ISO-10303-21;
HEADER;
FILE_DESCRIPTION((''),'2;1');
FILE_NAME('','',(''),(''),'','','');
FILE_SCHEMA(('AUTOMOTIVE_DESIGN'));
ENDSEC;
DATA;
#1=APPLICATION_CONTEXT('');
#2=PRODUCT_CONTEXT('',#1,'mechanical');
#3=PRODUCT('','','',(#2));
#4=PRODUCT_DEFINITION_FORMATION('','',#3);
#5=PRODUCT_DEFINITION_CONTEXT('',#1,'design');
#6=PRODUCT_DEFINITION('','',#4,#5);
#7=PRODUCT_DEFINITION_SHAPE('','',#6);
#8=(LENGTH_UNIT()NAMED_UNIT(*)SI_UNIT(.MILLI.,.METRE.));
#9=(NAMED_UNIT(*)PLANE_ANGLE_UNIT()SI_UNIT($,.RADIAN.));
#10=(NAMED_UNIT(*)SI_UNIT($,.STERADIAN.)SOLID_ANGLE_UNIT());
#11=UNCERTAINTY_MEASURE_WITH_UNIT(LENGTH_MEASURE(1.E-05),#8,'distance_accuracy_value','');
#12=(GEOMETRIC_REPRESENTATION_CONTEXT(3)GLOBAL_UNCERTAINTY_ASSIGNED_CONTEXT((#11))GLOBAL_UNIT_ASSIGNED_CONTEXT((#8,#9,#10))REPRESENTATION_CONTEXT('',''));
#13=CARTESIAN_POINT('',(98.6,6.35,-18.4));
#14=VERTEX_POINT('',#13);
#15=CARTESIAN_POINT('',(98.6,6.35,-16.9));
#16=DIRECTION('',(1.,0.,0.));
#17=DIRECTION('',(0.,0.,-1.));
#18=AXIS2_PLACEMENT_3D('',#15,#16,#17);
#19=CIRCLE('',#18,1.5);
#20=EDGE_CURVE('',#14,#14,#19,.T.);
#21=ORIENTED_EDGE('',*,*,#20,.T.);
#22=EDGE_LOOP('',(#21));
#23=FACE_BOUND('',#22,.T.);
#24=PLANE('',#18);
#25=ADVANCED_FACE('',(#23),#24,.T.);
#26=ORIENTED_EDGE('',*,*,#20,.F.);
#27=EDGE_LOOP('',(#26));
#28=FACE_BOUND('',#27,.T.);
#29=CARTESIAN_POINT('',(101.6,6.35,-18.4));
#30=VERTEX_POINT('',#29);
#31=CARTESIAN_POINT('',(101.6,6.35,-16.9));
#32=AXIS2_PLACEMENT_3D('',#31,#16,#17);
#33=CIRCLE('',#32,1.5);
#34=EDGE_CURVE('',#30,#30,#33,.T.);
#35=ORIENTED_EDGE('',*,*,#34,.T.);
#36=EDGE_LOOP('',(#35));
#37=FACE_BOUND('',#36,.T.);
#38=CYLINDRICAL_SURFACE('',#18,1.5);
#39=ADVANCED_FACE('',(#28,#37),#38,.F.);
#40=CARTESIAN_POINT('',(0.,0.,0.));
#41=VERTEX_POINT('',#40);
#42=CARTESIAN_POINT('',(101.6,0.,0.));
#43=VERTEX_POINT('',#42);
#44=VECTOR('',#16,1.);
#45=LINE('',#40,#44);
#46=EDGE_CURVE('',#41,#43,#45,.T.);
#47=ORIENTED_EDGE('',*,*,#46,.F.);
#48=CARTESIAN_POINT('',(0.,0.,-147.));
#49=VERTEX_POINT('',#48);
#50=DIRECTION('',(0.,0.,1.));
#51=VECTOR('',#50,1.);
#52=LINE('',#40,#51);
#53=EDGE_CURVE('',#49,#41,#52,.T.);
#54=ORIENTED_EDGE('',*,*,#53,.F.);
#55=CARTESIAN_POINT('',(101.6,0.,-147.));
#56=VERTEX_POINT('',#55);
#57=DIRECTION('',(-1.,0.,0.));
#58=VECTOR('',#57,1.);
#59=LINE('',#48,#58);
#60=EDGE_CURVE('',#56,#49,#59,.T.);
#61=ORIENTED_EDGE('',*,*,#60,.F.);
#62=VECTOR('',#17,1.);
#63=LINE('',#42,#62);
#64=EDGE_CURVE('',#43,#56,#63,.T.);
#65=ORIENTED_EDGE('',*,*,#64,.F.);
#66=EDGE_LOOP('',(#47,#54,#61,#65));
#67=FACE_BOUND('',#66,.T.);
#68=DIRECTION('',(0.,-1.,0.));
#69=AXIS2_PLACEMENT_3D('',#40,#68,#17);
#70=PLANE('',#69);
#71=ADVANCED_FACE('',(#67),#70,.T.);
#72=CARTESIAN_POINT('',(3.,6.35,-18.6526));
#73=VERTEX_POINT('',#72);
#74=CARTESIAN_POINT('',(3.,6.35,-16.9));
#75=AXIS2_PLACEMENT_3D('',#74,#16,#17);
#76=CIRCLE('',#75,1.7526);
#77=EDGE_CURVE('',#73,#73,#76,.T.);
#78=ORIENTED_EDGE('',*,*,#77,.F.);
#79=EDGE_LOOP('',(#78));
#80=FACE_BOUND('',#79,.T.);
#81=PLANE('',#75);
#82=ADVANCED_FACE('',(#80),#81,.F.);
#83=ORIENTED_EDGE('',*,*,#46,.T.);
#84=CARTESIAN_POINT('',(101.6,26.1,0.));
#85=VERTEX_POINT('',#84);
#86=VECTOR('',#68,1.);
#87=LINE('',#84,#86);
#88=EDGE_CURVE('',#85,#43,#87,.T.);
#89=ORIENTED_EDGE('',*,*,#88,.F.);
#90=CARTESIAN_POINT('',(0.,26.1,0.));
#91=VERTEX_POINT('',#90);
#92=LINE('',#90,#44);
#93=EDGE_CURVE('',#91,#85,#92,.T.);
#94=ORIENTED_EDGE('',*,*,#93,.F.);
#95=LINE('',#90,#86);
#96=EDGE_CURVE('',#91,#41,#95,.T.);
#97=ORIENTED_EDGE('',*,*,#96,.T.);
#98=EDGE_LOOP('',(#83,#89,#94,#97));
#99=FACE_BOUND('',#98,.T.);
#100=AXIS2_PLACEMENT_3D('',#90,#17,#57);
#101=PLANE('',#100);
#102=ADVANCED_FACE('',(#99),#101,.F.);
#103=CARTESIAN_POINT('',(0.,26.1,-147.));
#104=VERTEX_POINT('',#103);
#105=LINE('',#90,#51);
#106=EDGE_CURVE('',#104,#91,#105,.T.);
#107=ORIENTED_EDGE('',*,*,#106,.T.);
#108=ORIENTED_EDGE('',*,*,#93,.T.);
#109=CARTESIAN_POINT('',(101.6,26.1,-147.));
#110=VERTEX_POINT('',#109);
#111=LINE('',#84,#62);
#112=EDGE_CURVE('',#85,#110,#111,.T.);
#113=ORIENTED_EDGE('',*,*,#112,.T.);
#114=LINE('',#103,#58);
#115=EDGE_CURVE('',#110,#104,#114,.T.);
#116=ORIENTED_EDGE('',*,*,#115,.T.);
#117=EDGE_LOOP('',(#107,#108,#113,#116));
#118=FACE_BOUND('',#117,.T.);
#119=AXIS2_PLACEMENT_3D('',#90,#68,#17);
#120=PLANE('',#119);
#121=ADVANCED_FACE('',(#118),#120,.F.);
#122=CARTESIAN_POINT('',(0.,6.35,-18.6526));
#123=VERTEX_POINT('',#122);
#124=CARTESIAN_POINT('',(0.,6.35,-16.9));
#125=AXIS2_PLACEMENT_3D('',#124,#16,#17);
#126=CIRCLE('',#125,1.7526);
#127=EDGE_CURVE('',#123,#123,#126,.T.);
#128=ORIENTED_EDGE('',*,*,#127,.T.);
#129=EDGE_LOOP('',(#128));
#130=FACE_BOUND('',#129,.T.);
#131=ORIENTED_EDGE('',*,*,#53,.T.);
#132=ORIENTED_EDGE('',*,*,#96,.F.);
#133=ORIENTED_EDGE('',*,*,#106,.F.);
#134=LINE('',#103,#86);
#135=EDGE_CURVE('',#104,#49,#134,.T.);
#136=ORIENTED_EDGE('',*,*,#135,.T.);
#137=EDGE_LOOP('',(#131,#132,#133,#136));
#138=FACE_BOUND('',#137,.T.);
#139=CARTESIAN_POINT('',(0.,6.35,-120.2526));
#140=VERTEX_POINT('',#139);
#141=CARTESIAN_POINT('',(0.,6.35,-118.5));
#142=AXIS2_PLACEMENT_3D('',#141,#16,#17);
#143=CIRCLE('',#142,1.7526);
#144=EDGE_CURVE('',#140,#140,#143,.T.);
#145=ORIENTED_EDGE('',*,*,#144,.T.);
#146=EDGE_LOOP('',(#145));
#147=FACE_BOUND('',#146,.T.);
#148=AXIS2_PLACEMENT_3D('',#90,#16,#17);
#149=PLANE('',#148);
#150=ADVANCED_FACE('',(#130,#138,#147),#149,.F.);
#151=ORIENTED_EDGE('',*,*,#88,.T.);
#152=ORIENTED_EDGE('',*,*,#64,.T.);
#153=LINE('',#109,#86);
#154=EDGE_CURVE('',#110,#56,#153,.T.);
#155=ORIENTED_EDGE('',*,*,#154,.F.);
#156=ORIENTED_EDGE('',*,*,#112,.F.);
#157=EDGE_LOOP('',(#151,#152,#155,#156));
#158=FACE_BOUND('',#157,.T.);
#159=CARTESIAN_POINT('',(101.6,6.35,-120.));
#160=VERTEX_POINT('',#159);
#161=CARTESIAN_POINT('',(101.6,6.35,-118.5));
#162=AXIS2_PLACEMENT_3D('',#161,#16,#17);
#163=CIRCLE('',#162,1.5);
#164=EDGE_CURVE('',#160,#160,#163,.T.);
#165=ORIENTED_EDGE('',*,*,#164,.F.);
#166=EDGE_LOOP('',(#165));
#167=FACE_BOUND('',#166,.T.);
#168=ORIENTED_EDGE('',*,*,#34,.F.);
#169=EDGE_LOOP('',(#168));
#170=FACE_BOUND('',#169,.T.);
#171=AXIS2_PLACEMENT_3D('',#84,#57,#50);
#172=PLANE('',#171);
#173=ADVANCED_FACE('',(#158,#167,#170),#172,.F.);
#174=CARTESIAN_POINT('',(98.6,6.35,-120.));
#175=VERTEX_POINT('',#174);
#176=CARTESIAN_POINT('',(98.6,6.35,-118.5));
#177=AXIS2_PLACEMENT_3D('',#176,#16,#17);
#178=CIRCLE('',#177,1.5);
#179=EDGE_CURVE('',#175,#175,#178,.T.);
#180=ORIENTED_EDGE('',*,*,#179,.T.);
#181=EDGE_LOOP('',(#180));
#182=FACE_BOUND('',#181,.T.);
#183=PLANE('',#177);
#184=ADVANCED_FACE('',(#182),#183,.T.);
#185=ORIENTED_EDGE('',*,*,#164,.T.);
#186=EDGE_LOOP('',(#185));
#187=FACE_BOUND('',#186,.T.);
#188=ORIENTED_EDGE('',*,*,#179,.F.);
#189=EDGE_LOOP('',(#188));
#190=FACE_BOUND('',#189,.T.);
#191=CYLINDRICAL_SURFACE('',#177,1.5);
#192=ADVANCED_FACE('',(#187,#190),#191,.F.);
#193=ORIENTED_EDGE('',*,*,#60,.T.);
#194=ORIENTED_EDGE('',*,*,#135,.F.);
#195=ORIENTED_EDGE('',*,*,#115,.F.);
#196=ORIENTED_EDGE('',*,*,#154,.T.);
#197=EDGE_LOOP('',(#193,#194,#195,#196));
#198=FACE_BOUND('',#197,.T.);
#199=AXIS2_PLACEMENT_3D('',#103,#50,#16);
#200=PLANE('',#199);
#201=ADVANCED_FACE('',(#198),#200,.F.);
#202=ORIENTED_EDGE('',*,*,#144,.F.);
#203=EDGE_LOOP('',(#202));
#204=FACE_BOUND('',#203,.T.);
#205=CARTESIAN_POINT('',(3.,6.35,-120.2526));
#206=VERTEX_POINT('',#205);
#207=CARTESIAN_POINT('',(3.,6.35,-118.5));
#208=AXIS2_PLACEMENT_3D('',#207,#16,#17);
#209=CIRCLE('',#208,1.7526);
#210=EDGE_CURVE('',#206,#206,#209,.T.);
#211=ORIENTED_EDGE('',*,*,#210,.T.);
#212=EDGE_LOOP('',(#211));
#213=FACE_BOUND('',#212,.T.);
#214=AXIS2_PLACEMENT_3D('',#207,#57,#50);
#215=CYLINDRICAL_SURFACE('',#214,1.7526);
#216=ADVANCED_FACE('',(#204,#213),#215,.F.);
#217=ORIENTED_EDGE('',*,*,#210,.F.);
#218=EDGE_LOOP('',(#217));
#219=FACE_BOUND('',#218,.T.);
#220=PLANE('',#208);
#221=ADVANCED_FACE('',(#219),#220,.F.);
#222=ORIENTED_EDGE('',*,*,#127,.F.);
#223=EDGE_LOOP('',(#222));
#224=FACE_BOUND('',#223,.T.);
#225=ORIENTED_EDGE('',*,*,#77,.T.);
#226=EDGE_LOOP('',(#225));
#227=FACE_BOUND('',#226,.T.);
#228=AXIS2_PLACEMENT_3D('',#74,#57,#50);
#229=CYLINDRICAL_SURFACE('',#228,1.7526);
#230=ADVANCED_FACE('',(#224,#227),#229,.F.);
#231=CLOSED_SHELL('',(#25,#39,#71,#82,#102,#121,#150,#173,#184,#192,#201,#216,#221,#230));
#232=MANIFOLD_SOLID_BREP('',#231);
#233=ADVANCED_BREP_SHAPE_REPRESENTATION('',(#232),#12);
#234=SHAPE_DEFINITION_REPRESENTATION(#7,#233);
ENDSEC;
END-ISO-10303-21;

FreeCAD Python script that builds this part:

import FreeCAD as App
import Part
import Sketcher

V = App.Vector
Q = App.Units.Quantity

doc = App.newDocument("Part")
params = doc.addObject("Spreadsheet::Sheet", "Params")
for row, (alias, value) in enumerate([
    ("sketch1_height", "147 mm"),
    ("sketch1_width", "101.6 mm"),
    ("pad1_length", "26.1 mm"),
    ("pad2_length", "3.175 mm"),
    ("pocket1_length", "3 mm"),
    ("sketch4_diameter", "3 mm"),
    ("pocket2_length", "3 mm"),
], start=1):
    params.set(f"A{row}", alias)
    params.set(f"B{row}", "=" + value)
    params.setAlias(f"B{row}", alias)

body = doc.addObject("PartDesign::Body", "Body")

# Sketch on XZ plane
sketch1 = body.newObject("Sketcher::SketchObject", "Sketch")
sketch1.AttachmentSupport = (doc.getObject("XZ_Plane"), [""])
sketch1.MapMode = "FlatFace"
sketch1.addGeometry(Part.LineSegment(V(0, -147, 0), V(0, 0, 0)), False)
sketch1.addGeometry(Part.LineSegment(V(0, 0, 0), V(102, 0, 0)), False)
sketch1.addGeometry(Part.LineSegment(V(102, 0, 0), V(102, -147, 0)), False)
sketch1.addGeometry(Part.LineSegment(V(102, -147, 0), V(0, -147, 0)), False)
sketch1.addConstraint(Sketcher.Constraint("Coincident", 0, 2, 1, 1))
sketch1.addConstraint(Sketcher.Constraint("Coincident", 1, 2, 2, 1))
sketch1.addConstraint(Sketcher.Constraint("Coincident", 2, 2, 3, 1))
sketch1.addConstraint(Sketcher.Constraint("Coincident", 3, 2, 0, 1))
sketch1.addConstraint(Sketcher.Constraint("Vertical", 0))
sketch1.addConstraint(Sketcher.Constraint("Horizontal", 1))
sketch1.addConstraint(Sketcher.Constraint("Vertical", 2))
sketch1.addConstraint(Sketcher.Constraint("Horizontal", 3))
sketch1.addConstraint(Sketcher.Constraint("Coincident", 0, 2, -1, 1))
sketch1.addConstraint(Sketcher.Constraint("DistanceY", 0, 1, 0, 2, Q("147 mm")))
sketch1.addConstraint(Sketcher.Constraint("DistanceX", 1, 1, 1, 2, Q("101.6 mm")))
sketch1.setExpression("Constraints[9]", "Params.sketch1_height")
sketch1.setExpression("Constraints[10]", "Params.sketch1_width")
pad1 = body.newObject("PartDesign::Pad", "Pad")
pad1.Profile = sketch1
pad1.setExpression("Length", "Params.pad1_length")
pad1.Reversed = True

# Sketch on YZ plane
sketch2 = body.newObject("Sketcher::SketchObject", "Sketch001")
sketch2.AttachmentSupport = (doc.getObject("YZ_Plane"), [""])
sketch2.MapMode = "FlatFace"
sketch2.addGeometry(Part.Circle(V(6.3, -16.9, 0), V(0, 0, 1), 1.8), False)
sketch2.addGeometry(Part.Circle(V(6.3, -118.5, 0), V(0, 0, 1), 1.8), False)
sketch2.addConstraint(Sketcher.Constraint("Equal", 0, 1))
sketch2.addConstraint(Sketcher.Constraint("Vertical", 0, 3, 1, 3))
sketch2.addConstraint(Sketcher.Constraint("Diameter", 0, Q("3.5052 mm")))
sketch2.addConstraint(Sketcher.Constraint("DistanceY", 0, 3, -1, 1, Q("16.9 mm")))
sketch2.addConstraint(Sketcher.Constraint("DistanceY", 1, 3, -1, 1, Q("118.5 mm")))
sketch2.addConstraint(Sketcher.Constraint("DistanceX", -1, 1, 0, 3, Q("6.35 mm")))
pad2 = body.newObject("PartDesign::Pad", "Pad001")
pad2.Profile = sketch2
pad2.setExpression("Length", "Params.pad2_length")

# Sketch on YZ plane
sketch3 = body.newObject("Sketcher::SketchObject", "Sketch002")
sketch3.AttachmentSupport = (doc.getObject("YZ_Plane"), [""])
sketch3.MapMode = "FlatFace"
sketch3.addGeometry(Part.Circle(V(6.3, -16.9, 0), V(0, 0, 1), 1.8), False)
sketch3.addGeometry(Part.Circle(V(6.3, -118.5, 0), V(0, 0, 1), 1.8), False)
sketch3.addConstraint(Sketcher.Constraint("Equal", 0, 1))
sketch3.addConstraint(Sketcher.Constraint("Vertical", 0, 3, 1, 3))
sketch3.addConstraint(Sketcher.Constraint("Diameter", 0, Q("3.5052 mm")))
sketch3.addConstraint(Sketcher.Constraint("DistanceY", 0, 3, -1, 1, Q("16.9 mm")))
sketch3.addConstraint(Sketcher.Constraint("DistanceY", 1, 3, -1, 1, Q("118.5 mm")))
sketch3.addConstraint(Sketcher.Constraint("DistanceX", -1, 1, 0, 3, Q("6.35 mm")))
pocket1 = body.newObject("PartDesign::Pocket", "Pocket")
pocket1.Profile = sketch3
pocket1.setExpression("Length", "Params.pocket1_length")
pocket1.Reversed = True

# Sketch on YZ plane
sketch4 = body.newObject("Sketcher::SketchObject", "Sketch003")
sketch4.AttachmentSupport = (doc.getObject("YZ_Plane"), [""])
sketch4.MapMode = "FlatFace"
sketch4.AttachmentOffset = App.Placement(V(0, 0, 101.6), App.Rotation())
sketch4.addGeometry(Part.Circle(V(6.3, -118.5, 0), V(0, 0, 1), 1.5), False)
sketch4.addGeometry(Part.Circle(V(6.3, -16.9, 0), V(0, 0, 1), 1.5), False)
sketch4.addConstraint(Sketcher.Constraint("Equal", 0, 1))
sketch4.addConstraint(Sketcher.Constraint("Vertical", 0, 3, 1, 3))
sketch4.addConstraint(Sketcher.Constraint("Diameter", 0, Q("3 mm")))
sketch4.addConstraint(Sketcher.Constraint("DistanceY", 0, 3, -1, 1, Q("118.5 mm")))
sketch4.addConstraint(Sketcher.Constraint("DistanceY", 1, 3, -1, 1, Q("16.9 mm")))
sketch4.addConstraint(Sketcher.Constraint("DistanceX", -1, 1, 0, 3, Q("6.35 mm")))
sketch4.setExpression("Constraints[2]", "Params.sketch4_diameter")
pocket2 = body.newObject("PartDesign::Pocket", "Pocket001")
pocket2.Profile = sketch4
pocket2.setExpression("Length", "Params.pocket2_length")

doc.recompute()
